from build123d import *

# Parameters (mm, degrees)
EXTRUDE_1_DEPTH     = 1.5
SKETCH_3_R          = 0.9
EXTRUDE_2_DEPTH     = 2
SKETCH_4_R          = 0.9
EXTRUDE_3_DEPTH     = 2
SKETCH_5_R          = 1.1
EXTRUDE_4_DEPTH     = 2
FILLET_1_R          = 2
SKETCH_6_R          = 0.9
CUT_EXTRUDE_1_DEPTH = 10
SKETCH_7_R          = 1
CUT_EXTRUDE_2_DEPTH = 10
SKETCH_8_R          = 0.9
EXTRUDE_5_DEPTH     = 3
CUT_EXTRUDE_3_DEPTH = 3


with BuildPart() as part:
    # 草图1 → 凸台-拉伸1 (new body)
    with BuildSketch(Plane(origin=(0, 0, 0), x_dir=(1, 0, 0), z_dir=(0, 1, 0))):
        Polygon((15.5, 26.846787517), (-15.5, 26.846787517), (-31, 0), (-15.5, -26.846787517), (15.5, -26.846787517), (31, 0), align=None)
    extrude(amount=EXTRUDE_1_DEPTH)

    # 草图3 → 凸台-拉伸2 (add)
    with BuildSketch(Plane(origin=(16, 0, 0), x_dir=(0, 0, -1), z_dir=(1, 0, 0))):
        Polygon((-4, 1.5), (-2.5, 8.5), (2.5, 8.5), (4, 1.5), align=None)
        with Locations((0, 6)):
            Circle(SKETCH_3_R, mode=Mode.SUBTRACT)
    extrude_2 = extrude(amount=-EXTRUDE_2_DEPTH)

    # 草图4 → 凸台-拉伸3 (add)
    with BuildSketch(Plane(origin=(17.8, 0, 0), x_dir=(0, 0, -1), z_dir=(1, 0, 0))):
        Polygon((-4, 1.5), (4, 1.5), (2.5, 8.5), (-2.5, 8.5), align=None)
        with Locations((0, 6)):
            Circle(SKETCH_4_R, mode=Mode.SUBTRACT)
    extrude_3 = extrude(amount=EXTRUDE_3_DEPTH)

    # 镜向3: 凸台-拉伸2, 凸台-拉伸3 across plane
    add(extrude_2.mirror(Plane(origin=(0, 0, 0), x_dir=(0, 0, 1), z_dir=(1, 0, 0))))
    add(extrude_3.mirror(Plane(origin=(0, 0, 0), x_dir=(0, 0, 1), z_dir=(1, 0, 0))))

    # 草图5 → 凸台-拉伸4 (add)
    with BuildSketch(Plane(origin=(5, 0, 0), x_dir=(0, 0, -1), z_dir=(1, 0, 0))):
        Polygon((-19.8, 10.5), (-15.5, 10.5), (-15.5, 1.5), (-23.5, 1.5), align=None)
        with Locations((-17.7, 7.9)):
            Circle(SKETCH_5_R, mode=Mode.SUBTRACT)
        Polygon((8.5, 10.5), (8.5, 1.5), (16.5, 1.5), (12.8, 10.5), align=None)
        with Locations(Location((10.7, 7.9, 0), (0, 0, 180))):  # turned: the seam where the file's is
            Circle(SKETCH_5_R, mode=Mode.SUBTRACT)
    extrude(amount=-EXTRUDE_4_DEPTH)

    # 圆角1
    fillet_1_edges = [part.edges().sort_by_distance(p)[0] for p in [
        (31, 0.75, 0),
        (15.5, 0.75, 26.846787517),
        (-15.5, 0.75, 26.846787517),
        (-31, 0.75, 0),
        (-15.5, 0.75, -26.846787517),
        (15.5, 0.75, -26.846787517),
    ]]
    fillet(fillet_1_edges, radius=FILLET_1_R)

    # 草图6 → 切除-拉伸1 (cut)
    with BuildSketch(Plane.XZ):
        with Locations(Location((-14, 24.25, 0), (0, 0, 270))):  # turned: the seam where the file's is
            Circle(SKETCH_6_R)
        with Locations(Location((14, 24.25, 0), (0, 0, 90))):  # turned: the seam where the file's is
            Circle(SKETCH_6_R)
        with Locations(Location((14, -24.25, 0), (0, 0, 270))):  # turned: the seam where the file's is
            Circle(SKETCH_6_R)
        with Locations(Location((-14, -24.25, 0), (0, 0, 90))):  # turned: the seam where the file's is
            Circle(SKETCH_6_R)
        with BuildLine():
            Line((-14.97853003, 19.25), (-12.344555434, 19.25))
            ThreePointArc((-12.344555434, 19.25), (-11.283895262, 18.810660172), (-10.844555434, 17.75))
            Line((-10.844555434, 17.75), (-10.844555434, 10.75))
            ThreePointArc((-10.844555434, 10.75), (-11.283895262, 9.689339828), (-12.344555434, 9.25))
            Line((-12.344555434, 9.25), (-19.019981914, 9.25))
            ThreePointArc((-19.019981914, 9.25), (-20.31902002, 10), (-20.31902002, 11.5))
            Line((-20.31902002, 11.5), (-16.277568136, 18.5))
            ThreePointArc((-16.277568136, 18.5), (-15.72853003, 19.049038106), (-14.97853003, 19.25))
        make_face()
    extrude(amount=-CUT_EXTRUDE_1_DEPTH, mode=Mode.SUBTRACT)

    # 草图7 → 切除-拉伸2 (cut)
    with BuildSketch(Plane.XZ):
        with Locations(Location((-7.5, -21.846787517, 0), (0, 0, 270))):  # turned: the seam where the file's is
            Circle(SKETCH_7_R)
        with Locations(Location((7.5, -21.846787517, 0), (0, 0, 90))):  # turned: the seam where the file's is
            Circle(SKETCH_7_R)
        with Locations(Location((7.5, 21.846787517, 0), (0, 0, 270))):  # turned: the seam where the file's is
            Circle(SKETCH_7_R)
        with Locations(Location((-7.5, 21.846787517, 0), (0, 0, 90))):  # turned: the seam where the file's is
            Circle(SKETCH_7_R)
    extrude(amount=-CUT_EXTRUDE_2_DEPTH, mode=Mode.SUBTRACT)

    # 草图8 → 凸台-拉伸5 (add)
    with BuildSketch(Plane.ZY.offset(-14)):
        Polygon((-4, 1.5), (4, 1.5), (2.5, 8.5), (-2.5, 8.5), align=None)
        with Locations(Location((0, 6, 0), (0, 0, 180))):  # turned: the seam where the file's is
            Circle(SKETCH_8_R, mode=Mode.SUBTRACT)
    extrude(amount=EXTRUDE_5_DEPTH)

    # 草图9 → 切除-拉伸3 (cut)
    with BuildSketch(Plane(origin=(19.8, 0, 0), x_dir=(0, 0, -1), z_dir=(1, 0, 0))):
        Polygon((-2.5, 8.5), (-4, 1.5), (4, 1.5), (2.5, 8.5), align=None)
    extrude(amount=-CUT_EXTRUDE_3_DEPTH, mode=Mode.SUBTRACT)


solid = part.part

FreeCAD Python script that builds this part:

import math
import FreeCAD as App
import Part
import Sketcher
Q = App.Units.Quantity


def edges_at(feature, points):
    """Names of the edges that pass closest to the given points."""
    edges = feature.Shape.Edges
    near = lambda p: min(range(len(edges)), key=lambda i: edges[i].distToShape(Part.Vertex(*p))[0])
    return sorted({f"Edge{near(p) + 1}" for p in points})


def add_polygon(sketch, points):
    """Adds a closed chain of lines whose ends are joined by coincident constraints."""
    first, n = sketch.GeometryCount, len(points)
    for a, b in zip(points, points[1:] + points[:1]):
        sketch.addGeometry(Part.LineSegment(App.Vector(*a, 0), App.Vector(*b, 0)), False)
    for i in range(n):
        sketch.addConstraint(Sketcher.Constraint("Coincident", first + i, 2, first + (i + 1) % n, 1))

doc = App.newDocument("Part")
body = doc.addObject("PartDesign::Body", "Body")

# Sketch on XZ plane
sketch1 = doc.addObject("Sketcher::SketchObject", "Sketch")
body.addObject(sketch1)
sketch1.AttachmentSupport = (doc.XZ_Plane, [""])
sketch1.MapMode = "FlatFace"
add_polygon(sketch1, [(16, -27), (-16, -27), (-31, 0), (-16, 27), (16, 27), (31, 0)])  # lines 0-5
sketch1.addConstraint([
    Sketcher.Constraint("Horizontal", 0),
    Sketcher.Constraint("Horizontal", 3),
    Sketcher.Constraint("Symmetric", 0, 2, 3, 2, -1, 1),
    Sketcher.Constraint("Symmetric", 1, 2, 4, 2, -1, 1),
    Sketcher.Constraint("PointOnObject", 1, 2, -1),
    Sketcher.Constraint("Parallel", 2, 5),
    Sketcher.Constraint("Vertical", 0, 2, 2, 2),
    Sketcher.Constraint("DistanceX", 0, 2, 0, 1, Q("31 mm")),
    Sketcher.Constraint("Angle", 1, Q("120 deg")),
    Sketcher.Constraint("Distance", 1, Q("31 mm")),
])
pad1 = doc.addObject("PartDesign::Pad", "Pad")
body.addObject(pad1)
pad1.Profile = sketch1
pad1.Length = 1.5
pad1.Reversed = True

# Sketch on YZ plane
sketch2 = doc.addObject("Sketcher::SketchObject", "Sketch001")
body.addObject(sketch2)
sketch2.AttachmentSupport = (doc.YZ_Plane, [""])
sketch2.MapMode = "FlatFace"
sketch2.AttachmentOffset = App.Placement(App.Vector(0, 0, 16), App.Rotation())
add_polygon(sketch2, [(8.5, 2.5), (1.5, 4), (1.5, -4), (8.5, -2.5)])  # lines 0-3
sketch2.addGeometry(Part.Circle(App.Vector(6, 0, 0), App.Vector(0, 0, 1), 0.9), False)  # 4
sketch2.addConstraint([
    Sketcher.Constraint("Vertical", 1),
    Sketcher.Constraint("Vertical", 3),
    Sketcher.Constraint("PointOnObject", 4, 3, -1),
    Sketcher.Constraint("Equal", 0, 2),
    Sketcher.Constraint("Diameter", 4, Q("1.8 mm")),
    Sketcher.Constraint("DistanceY", 1, 2, 1, 1, Q("8 mm")),
    Sketcher.Constraint("DistanceY", 3, 1, 3, 2, Q("5 mm")),
    Sketcher.Constraint("DistanceX", -1, 1, 4, 3, Q("6 mm")),
    Sketcher.Constraint("DistanceY", -1, 1, 0, 2, Q("4 mm")),
    Sketcher.Constraint("DistanceX", 1, 2, 2, 2, Q("7 mm")),
    Sketcher.Constraint("DistanceX", -1, 1, 0, 2, Q("1.5 mm")),
])
pad2 = doc.addObject("PartDesign::Pad", "Pad001")
body.addObject(pad2)
pad2.Profile = sketch2
pad2.Length = 2
pad2.Reversed = True

# Sketch on YZ plane
sketch3 = doc.addObject("Sketcher::SketchObject", "Sketch002")
body.addObject(sketch3)
sketch3.AttachmentSupport = (doc.YZ_Plane, [""])
sketch3.MapMode = "FlatFace"
sketch3.AttachmentOffset = App.Placement(App.Vector(0, 0, 17.8), App.Rotation())
add_polygon(sketch3, [(1.5, 4), (1.5, -4), (8.5, -2.5), (8.5, 2.5)])  # lines 0-3
sketch3.addGeometry(Part.Circle(App.Vector(6, 0, 0), App.Vector(0, 0, 1), 0.9), False)  # 4
sketch3.addConstraint([
    Sketcher.Constraint("Vertical", 0),
    Sketcher.Constraint("Vertical", 2),
    Sketcher.Constraint("PointOnObject", 4, 3, -1),
    Sketcher.Constraint("Equal", 1, 3),
    Sketcher.Constraint("Diameter", 4, Q("1.8 mm")),
    Sketcher.Constraint("DistanceY", 0, 2, 0, 1, Q("8 mm")),
    Sketcher.Constraint("DistanceY", 2, 1, 2, 2, Q("5 mm")),
    Sketcher.Constraint("DistanceX", -1, 1, 4, 3, Q("6 mm")),
    Sketcher.Constraint("DistanceY", 0, 2, -1, 1, Q("4 mm")),
    Sketcher.Constraint("DistanceX", 0, 2, 1, 2, Q("7 mm")),
    Sketcher.Constraint("DistanceX", -1, 1, 0, 2, Q("1.5 mm")),
])
pad3 = doc.addObject("PartDesign::Pad", "Pad002")
body.addObject(pad3)
pad3.Profile = sketch3
pad3.Length = 2
doc.recompute()

mirrored = doc.addObject("PartDesign::Mirrored", "Mirrored")
body.addObject(mirrored)
mirrored.Originals = [pad2, pad3]
mirrored.MirrorPlane = (doc.YZ_Plane, [""])
body.Tip = mirrored

# Sketch on YZ plane
sketch4 = doc.addObject("Sketcher::SketchObject", "Sketch003")
body.addObject(sketch4)
sketch4.AttachmentSupport = (doc.YZ_Plane, [""])
sketch4.MapMode = "FlatFace"
sketch4.AttachmentOffset = App.Placement(App.Vector(0, 0, 5), App.Rotation())
add_polygon(sketch4, [(10.5, 15.5), (10.5, 19.8), (1.5, 23.5), (1.5, 15.5)])  # lines 0-3
sketch4.addGeometry(Part.Circle(App.Vector(7.9, 17.7, 0), App.Vector(0, 0, 1), 1.1), False)  # 4
add_polygon(sketch4, [(10.5, -8.5), (1.5, -8.5), (1.5, -16.5), (10.5, -12.8)])  # lines 5-8
sketch4.addGeometry(Part.Circle(App.Vector(7.9, -10.7, 0), App.Vector(0, 0, 1), 1.1), False)  # 9
sketch4.addConstraint([
    Sketcher.Constraint("Vertical", 0),
    Sketcher.Constraint("Vertical", 2),
    Sketcher.Constraint("Horizontal", 3),
    Sketcher.Constraint("Horizontal", 5),
    Sketcher.Constraint("Vertical", 6),
    Sketcher.Constraint("Vertical", 8),
    Sketcher.Constraint("Equal", 4, 9),
    Sketcher.Constraint("Vertical", 4, 3, 9, 3),
    Sketcher.Constraint("Vertical", 2, 2, 5, 2),
    Sketcher.Constraint("Vertical", 3, 2, 7, 2),
    Sketcher.Constraint("Equal", 2, 6),
    Sketcher.Constraint("Equal", 0, 8),
    Sketcher.Constraint("Diameter", 4, Q("2.2 mm")),
    Sketcher.Constraint("DistanceX", 3, 1, 3, 2, Q("9 mm")),
    Sketcher.Constraint("DistanceY", 2, 2, 2, 1, Q("8 mm")),
    Sketcher.Constraint("DistanceY", 0, 1, 0, 2, Q("4.3 mm")),
    Sketcher.Constraint("DistanceY", 5, 2, 2, 2, Q("24 mm")),
    Sketcher.Constraint("DistanceX", -1, 1, 4, 3, Q("7.9 mm")),
    Sketcher.Constraint("DistanceY", -1, 1, 4, 3, Q("17.7 mm")),
    Sketcher.Constraint("DistanceY", 9, 3, -1, 1, Q("10.7 mm")),
    Sketcher.Constraint("DistanceX", -1, 1, 0, 2, Q("10.5 mm")),
    Sketcher.Constraint("DistanceY", -1, 1, 0, 2, Q("19.8 mm")),
])
pad4 = doc.addObject("PartDesign::Pad", "Pad003")
body.addObject(pad4)
pad4.Profile = sketch4
pad4.Length = 2
pad4.Reversed = True
doc.recompute()

fillet = doc.addObject("PartDesign::Fillet", "Fillet")
body.addObject(fillet)
fillet.Base = (pad4, edges_at(pad4, [
    (31, 0.75, 0),
    (15.5, 0.75, 26.847),
    (-15.5, 0.75, 26.847),
    (-31, 0.75, 0),
    (-15.5, 0.75, -26.847),
    (15.5, 0.75, -26.847),
]))
fillet.Radius = 2

# Sketch on XZ plane
sketch5 = doc.addObject("Sketcher::SketchObject", "Sketch004")
body.addObject(sketch5)
sketch5.AttachmentSupport = (doc.XZ_Plane, [""])
sketch5.MapMode = "FlatFace"
sketch5.addGeometry([
    Part.Circle(App.Vector(-14, 24.2, 0), App.Vector(0, 0, 1), 0.9),  # 0
    Part.Circle(App.Vector(14, 24.2, 0), App.Vector(0, 0, 1), 0.9),  # 1
    Part.Circle(App.Vector(14, -24.2, 0), App.Vector(0, 0, 1), 0.9),  # 2
    Part.Circle(App.Vector(-14, -24.2, 0), App.Vector(0, 0, 1), 0.9),  # 3
    Part.LineSegment(App.Vector(-12.3, 19.2, 0), App.Vector(-15, 19.2, 0)),  # 4
    Part.ArcOfCircle(Part.Circle(App.Vector(-15, 17.8, 0), App.Vector(0, 0, 1), 1.5), math.radians(90), math.radians(150)),  # 5
    Part.LineSegment(App.Vector(-16.3, 18.5, 0), App.Vector(-20.3, 11.5, 0)),  # 6
    Part.ArcOfCircle(Part.Circle(App.Vector(-19, 10.8, 0), App.Vector(0, 0, 1), 1.5), math.radians(150), math.radians(270)),  # 7
    Part.LineSegment(App.Vector(-19, 9.2, 0), App.Vector(-12.3, 9.2, 0)),  # 8
    Part.ArcOfCircle(Part.Circle(App.Vector(-12.3, 10.7, 0), App.Vector(0, 0, 1), 1.5), math.radians(-90), math.radians(0)),  # 9
    Part.LineSegment(App.Vector(-10.8, 10.8, 0), App.Vector(-10.8, 17.8, 0)),  # 10
    Part.ArcOfCircle(Part.Circle(App.Vector(-12.3, 17.8, 0), App.Vector(0, 0, 1), 1.5), math.radians(0), math.radians(90)),  # 11
], False)
sketch5.addConstraint([
    Sketcher.Constraint("Tangent", 4, 2, 5, 1),
    Sketcher.Constraint("Tangent", 5, 2, 6, 1),
    Sketcher.Constraint("Tangent", 6, 2, 7, 1),
    Sketcher.Constraint("Tangent", 7, 2, 8, 1),
    Sketcher.Constraint("Tangent", 8, 2, 9, 1),
    Sketcher.Constraint("Tangent", 9, 2, 10, 1),
    Sketcher.Constraint("Tangent", 10, 2, 11, 1),
    Sketcher.Constraint("Tangent", 11, 2, 4, 1),
    Sketcher.Constraint("Horizontal", 4),
    Sketcher.Constraint("Horizontal", 8),
    Sketcher.Constraint("Vertical", 10),
    Sketcher.Constraint("Equal", 0, 1),
    Sketcher.Constraint("Equal", 1, 2),
    Sketcher.Constraint("Equal", 2, 3),
    Sketcher.Constraint("Equal", 5, 7),
    Sketcher.Constraint("Equal", 7, 9),
    Sketcher.Constraint("Equal", 9, 11),
    Sketcher.Constraint("Symmetric", 0, 3, 2, 3, -1, 1),
    Sketcher.Constraint("Symmetric", 1, 3, 3, 3, -1, 1),
    Sketcher.Constraint("Symmetric", 0, 3, 1, 3, -2),
    Sketcher.Constraint("Diameter", 0, Q("1.8 mm")),
    Sketcher.Constraint("Radius", 5, Q("1.5 mm")),
    Sketcher.Constraint("DistanceY", 10, 1, 10, 2, Q("7 mm")),
    Sketcher.Constraint("Angle", 6, Q("-120 deg")),
    Sketcher.Constraint("DistanceX", 0, 3, -1, 1, Q("14 mm")),
    Sketcher.Constraint("DistanceY", 3, 3, 5, 3, Q("42 mm")),
    Sketcher.Constraint("DistanceY", 4, 2, 0, 3, Q("5 mm")),
    Sketcher.Constraint("DistanceX", 4, 2, 4, 1, Q("2.633975 mm")),
    Sketcher.Constraint("DistanceX", 5, 3, -1, 1, Q("14.97853 mm")),
])
pocket1 = doc.addObject("PartDesign::Pocket", "Pocket")
body.addObject(pocket1)
pocket1.Profile = sketch5
pocket1.Length = 10

# Sketch on XZ plane
sketch6 = doc.addObject("Sketcher::SketchObject", "Sketch005")
body.addObject(sketch6)
sketch6.AttachmentSupport = (doc.XZ_Plane, [""])
sketch6.MapMode = "FlatFace"
sketch6.addGeometry([
    Part.Circle(App.Vector(-7.5, -21.8, 0), App.Vector(0, 0, 1), 1),
    Part.Circle(App.Vector(7.5, -21.8, 0), App.Vector(0, 0, 1), 1),
    Part.Circle(App.Vector(7.5, 21.8, 0), App.Vector(0, 0, 1), 1),
    Part.Circle(App.Vector(-7.5, 21.8, 0), App.Vector(0, 0, 1), 1),
], False)
sketch6.addConstraint([
    Sketcher.Constraint("Equal", 0, 1),
    Sketcher.Constraint("Equal", 1, 2),
    Sketcher.Constraint("Equal", 2, 3),
    Sketcher.Constraint("Symmetric", 0, 3, 2, 3, -1, 1),
    Sketcher.Constraint("Symmetric", 1, 3, 3, 3, -1, 1),
    Sketcher.Constraint("Symmetric", 0, 3, 1, 3, -2),
    Sketcher.Constraint("Diameter", 0, Q("2 mm")),
    Sketcher.Constraint("DistanceX", 0, 3, 1, 3, Q("15 mm")),
    Sketcher.Constraint("DistanceY", 0, 3, -1, 1, Q("21.846788 mm")),
])
pocket2 = doc.addObject("PartDesign::Pocket", "Pocket001")
body.addObject(pocket2)
pocket2.Profile = sketch6
pocket2.Length = 10

# Sketch on YZ plane
sketch7 = doc.addObject("Sketcher::SketchObject", "Sketch006")
body.addObject(sketch7)
sketch7.AttachmentSupport = (doc.YZ_Plane, [""])
sketch7.MapMode = "FlatFace"
sketch7.AttachmentOffset = App.Placement(App.Vector(0, 0, 14), App.Rotation())
add_polygon(sketch7, [(1.5, -4), (1.5, 4), (8.5, 2.5), (8.5, -2.5)])  # lines 0-3
sketch7.addGeometry(Part.Circle(App.Vector(6, 0, 0), App.Vector(0, 0, 1), 0.9), False)  # 4
sketch7.addConstraint([
    Sketcher.Constraint("Vertical", 0),
    Sketcher.Constraint("Vertical", 2),
    Sketcher.Constraint("PointOnObject", 4, 3, -1),
    Sketcher.Constraint("Equal", 1, 3),
    Sketcher.Constraint("Diameter", 4, Q("1.8 mm")),
    Sketcher.Constraint("DistanceY", 0, 1, 0, 2, Q("8 mm")),
    Sketcher.Constraint("DistanceY", 2, 2, 2, 1, Q("5 mm")),
    Sketcher.Constraint("DistanceX", -1, 1, 4, 3, Q("6 mm")),
    Sketcher.Constraint("DistanceY", -1, 1, 0, 2, Q("4 mm")),
    Sketcher.Constraint("DistanceX", 0, 2, 1, 2, Q("7 mm")),
    Sketcher.Constraint("DistanceX", -1, 1, 0, 2, Q("1.5 mm")),
])
pad5 = doc.addObject("PartDesign::Pad", "Pad004")
body.addObject(pad5)
pad5.Profile = sketch7
pad5.Length = 3
pad5.Reversed = True

# Sketch on YZ plane
sketch8 = doc.addObject("Sketcher::SketchObject", "Sketch007")
body.addObject(sketch8)
sketch8.AttachmentSupport = (doc.YZ_Plane, [""])
sketch8.MapMode = "FlatFace"
sketch8.AttachmentOffset = App.Placement(App.Vector(0, 0, 19.8), App.Rotation())
add_polygon(sketch8, [(8, 2), (2, 4), (2, -4), (8, -2)])  # lines 0-3
sketch8.addConstraint([
    Sketcher.Constraint("Vertical", 1),
    Sketcher.Constraint("Vertical", 3),
    Sketcher.Constraint("Equal", 0, 2),
    Sketcher.Constraint("DistanceY", 1, 2, 1, 1, Q("8 mm")),
    Sketcher.Constraint("DistanceY", 3, 1, 3, 2, Q("5 mm")),
    Sketcher.Constraint("DistanceY", -1, 1, 0, 2, Q("4 mm")),
    Sketcher.Constraint("DistanceX", 1, 2, 2, 2, Q("7 mm")),
    Sketcher.Constraint("DistanceX", -1, 1, 0, 2, Q("1.5 mm")),
])
pocket3 = doc.addObject("PartDesign::Pocket", "Pocket002")
body.addObject(pocket3)
pocket3.Profile = sketch8
pocket3.Length = 3

doc.recompute()
